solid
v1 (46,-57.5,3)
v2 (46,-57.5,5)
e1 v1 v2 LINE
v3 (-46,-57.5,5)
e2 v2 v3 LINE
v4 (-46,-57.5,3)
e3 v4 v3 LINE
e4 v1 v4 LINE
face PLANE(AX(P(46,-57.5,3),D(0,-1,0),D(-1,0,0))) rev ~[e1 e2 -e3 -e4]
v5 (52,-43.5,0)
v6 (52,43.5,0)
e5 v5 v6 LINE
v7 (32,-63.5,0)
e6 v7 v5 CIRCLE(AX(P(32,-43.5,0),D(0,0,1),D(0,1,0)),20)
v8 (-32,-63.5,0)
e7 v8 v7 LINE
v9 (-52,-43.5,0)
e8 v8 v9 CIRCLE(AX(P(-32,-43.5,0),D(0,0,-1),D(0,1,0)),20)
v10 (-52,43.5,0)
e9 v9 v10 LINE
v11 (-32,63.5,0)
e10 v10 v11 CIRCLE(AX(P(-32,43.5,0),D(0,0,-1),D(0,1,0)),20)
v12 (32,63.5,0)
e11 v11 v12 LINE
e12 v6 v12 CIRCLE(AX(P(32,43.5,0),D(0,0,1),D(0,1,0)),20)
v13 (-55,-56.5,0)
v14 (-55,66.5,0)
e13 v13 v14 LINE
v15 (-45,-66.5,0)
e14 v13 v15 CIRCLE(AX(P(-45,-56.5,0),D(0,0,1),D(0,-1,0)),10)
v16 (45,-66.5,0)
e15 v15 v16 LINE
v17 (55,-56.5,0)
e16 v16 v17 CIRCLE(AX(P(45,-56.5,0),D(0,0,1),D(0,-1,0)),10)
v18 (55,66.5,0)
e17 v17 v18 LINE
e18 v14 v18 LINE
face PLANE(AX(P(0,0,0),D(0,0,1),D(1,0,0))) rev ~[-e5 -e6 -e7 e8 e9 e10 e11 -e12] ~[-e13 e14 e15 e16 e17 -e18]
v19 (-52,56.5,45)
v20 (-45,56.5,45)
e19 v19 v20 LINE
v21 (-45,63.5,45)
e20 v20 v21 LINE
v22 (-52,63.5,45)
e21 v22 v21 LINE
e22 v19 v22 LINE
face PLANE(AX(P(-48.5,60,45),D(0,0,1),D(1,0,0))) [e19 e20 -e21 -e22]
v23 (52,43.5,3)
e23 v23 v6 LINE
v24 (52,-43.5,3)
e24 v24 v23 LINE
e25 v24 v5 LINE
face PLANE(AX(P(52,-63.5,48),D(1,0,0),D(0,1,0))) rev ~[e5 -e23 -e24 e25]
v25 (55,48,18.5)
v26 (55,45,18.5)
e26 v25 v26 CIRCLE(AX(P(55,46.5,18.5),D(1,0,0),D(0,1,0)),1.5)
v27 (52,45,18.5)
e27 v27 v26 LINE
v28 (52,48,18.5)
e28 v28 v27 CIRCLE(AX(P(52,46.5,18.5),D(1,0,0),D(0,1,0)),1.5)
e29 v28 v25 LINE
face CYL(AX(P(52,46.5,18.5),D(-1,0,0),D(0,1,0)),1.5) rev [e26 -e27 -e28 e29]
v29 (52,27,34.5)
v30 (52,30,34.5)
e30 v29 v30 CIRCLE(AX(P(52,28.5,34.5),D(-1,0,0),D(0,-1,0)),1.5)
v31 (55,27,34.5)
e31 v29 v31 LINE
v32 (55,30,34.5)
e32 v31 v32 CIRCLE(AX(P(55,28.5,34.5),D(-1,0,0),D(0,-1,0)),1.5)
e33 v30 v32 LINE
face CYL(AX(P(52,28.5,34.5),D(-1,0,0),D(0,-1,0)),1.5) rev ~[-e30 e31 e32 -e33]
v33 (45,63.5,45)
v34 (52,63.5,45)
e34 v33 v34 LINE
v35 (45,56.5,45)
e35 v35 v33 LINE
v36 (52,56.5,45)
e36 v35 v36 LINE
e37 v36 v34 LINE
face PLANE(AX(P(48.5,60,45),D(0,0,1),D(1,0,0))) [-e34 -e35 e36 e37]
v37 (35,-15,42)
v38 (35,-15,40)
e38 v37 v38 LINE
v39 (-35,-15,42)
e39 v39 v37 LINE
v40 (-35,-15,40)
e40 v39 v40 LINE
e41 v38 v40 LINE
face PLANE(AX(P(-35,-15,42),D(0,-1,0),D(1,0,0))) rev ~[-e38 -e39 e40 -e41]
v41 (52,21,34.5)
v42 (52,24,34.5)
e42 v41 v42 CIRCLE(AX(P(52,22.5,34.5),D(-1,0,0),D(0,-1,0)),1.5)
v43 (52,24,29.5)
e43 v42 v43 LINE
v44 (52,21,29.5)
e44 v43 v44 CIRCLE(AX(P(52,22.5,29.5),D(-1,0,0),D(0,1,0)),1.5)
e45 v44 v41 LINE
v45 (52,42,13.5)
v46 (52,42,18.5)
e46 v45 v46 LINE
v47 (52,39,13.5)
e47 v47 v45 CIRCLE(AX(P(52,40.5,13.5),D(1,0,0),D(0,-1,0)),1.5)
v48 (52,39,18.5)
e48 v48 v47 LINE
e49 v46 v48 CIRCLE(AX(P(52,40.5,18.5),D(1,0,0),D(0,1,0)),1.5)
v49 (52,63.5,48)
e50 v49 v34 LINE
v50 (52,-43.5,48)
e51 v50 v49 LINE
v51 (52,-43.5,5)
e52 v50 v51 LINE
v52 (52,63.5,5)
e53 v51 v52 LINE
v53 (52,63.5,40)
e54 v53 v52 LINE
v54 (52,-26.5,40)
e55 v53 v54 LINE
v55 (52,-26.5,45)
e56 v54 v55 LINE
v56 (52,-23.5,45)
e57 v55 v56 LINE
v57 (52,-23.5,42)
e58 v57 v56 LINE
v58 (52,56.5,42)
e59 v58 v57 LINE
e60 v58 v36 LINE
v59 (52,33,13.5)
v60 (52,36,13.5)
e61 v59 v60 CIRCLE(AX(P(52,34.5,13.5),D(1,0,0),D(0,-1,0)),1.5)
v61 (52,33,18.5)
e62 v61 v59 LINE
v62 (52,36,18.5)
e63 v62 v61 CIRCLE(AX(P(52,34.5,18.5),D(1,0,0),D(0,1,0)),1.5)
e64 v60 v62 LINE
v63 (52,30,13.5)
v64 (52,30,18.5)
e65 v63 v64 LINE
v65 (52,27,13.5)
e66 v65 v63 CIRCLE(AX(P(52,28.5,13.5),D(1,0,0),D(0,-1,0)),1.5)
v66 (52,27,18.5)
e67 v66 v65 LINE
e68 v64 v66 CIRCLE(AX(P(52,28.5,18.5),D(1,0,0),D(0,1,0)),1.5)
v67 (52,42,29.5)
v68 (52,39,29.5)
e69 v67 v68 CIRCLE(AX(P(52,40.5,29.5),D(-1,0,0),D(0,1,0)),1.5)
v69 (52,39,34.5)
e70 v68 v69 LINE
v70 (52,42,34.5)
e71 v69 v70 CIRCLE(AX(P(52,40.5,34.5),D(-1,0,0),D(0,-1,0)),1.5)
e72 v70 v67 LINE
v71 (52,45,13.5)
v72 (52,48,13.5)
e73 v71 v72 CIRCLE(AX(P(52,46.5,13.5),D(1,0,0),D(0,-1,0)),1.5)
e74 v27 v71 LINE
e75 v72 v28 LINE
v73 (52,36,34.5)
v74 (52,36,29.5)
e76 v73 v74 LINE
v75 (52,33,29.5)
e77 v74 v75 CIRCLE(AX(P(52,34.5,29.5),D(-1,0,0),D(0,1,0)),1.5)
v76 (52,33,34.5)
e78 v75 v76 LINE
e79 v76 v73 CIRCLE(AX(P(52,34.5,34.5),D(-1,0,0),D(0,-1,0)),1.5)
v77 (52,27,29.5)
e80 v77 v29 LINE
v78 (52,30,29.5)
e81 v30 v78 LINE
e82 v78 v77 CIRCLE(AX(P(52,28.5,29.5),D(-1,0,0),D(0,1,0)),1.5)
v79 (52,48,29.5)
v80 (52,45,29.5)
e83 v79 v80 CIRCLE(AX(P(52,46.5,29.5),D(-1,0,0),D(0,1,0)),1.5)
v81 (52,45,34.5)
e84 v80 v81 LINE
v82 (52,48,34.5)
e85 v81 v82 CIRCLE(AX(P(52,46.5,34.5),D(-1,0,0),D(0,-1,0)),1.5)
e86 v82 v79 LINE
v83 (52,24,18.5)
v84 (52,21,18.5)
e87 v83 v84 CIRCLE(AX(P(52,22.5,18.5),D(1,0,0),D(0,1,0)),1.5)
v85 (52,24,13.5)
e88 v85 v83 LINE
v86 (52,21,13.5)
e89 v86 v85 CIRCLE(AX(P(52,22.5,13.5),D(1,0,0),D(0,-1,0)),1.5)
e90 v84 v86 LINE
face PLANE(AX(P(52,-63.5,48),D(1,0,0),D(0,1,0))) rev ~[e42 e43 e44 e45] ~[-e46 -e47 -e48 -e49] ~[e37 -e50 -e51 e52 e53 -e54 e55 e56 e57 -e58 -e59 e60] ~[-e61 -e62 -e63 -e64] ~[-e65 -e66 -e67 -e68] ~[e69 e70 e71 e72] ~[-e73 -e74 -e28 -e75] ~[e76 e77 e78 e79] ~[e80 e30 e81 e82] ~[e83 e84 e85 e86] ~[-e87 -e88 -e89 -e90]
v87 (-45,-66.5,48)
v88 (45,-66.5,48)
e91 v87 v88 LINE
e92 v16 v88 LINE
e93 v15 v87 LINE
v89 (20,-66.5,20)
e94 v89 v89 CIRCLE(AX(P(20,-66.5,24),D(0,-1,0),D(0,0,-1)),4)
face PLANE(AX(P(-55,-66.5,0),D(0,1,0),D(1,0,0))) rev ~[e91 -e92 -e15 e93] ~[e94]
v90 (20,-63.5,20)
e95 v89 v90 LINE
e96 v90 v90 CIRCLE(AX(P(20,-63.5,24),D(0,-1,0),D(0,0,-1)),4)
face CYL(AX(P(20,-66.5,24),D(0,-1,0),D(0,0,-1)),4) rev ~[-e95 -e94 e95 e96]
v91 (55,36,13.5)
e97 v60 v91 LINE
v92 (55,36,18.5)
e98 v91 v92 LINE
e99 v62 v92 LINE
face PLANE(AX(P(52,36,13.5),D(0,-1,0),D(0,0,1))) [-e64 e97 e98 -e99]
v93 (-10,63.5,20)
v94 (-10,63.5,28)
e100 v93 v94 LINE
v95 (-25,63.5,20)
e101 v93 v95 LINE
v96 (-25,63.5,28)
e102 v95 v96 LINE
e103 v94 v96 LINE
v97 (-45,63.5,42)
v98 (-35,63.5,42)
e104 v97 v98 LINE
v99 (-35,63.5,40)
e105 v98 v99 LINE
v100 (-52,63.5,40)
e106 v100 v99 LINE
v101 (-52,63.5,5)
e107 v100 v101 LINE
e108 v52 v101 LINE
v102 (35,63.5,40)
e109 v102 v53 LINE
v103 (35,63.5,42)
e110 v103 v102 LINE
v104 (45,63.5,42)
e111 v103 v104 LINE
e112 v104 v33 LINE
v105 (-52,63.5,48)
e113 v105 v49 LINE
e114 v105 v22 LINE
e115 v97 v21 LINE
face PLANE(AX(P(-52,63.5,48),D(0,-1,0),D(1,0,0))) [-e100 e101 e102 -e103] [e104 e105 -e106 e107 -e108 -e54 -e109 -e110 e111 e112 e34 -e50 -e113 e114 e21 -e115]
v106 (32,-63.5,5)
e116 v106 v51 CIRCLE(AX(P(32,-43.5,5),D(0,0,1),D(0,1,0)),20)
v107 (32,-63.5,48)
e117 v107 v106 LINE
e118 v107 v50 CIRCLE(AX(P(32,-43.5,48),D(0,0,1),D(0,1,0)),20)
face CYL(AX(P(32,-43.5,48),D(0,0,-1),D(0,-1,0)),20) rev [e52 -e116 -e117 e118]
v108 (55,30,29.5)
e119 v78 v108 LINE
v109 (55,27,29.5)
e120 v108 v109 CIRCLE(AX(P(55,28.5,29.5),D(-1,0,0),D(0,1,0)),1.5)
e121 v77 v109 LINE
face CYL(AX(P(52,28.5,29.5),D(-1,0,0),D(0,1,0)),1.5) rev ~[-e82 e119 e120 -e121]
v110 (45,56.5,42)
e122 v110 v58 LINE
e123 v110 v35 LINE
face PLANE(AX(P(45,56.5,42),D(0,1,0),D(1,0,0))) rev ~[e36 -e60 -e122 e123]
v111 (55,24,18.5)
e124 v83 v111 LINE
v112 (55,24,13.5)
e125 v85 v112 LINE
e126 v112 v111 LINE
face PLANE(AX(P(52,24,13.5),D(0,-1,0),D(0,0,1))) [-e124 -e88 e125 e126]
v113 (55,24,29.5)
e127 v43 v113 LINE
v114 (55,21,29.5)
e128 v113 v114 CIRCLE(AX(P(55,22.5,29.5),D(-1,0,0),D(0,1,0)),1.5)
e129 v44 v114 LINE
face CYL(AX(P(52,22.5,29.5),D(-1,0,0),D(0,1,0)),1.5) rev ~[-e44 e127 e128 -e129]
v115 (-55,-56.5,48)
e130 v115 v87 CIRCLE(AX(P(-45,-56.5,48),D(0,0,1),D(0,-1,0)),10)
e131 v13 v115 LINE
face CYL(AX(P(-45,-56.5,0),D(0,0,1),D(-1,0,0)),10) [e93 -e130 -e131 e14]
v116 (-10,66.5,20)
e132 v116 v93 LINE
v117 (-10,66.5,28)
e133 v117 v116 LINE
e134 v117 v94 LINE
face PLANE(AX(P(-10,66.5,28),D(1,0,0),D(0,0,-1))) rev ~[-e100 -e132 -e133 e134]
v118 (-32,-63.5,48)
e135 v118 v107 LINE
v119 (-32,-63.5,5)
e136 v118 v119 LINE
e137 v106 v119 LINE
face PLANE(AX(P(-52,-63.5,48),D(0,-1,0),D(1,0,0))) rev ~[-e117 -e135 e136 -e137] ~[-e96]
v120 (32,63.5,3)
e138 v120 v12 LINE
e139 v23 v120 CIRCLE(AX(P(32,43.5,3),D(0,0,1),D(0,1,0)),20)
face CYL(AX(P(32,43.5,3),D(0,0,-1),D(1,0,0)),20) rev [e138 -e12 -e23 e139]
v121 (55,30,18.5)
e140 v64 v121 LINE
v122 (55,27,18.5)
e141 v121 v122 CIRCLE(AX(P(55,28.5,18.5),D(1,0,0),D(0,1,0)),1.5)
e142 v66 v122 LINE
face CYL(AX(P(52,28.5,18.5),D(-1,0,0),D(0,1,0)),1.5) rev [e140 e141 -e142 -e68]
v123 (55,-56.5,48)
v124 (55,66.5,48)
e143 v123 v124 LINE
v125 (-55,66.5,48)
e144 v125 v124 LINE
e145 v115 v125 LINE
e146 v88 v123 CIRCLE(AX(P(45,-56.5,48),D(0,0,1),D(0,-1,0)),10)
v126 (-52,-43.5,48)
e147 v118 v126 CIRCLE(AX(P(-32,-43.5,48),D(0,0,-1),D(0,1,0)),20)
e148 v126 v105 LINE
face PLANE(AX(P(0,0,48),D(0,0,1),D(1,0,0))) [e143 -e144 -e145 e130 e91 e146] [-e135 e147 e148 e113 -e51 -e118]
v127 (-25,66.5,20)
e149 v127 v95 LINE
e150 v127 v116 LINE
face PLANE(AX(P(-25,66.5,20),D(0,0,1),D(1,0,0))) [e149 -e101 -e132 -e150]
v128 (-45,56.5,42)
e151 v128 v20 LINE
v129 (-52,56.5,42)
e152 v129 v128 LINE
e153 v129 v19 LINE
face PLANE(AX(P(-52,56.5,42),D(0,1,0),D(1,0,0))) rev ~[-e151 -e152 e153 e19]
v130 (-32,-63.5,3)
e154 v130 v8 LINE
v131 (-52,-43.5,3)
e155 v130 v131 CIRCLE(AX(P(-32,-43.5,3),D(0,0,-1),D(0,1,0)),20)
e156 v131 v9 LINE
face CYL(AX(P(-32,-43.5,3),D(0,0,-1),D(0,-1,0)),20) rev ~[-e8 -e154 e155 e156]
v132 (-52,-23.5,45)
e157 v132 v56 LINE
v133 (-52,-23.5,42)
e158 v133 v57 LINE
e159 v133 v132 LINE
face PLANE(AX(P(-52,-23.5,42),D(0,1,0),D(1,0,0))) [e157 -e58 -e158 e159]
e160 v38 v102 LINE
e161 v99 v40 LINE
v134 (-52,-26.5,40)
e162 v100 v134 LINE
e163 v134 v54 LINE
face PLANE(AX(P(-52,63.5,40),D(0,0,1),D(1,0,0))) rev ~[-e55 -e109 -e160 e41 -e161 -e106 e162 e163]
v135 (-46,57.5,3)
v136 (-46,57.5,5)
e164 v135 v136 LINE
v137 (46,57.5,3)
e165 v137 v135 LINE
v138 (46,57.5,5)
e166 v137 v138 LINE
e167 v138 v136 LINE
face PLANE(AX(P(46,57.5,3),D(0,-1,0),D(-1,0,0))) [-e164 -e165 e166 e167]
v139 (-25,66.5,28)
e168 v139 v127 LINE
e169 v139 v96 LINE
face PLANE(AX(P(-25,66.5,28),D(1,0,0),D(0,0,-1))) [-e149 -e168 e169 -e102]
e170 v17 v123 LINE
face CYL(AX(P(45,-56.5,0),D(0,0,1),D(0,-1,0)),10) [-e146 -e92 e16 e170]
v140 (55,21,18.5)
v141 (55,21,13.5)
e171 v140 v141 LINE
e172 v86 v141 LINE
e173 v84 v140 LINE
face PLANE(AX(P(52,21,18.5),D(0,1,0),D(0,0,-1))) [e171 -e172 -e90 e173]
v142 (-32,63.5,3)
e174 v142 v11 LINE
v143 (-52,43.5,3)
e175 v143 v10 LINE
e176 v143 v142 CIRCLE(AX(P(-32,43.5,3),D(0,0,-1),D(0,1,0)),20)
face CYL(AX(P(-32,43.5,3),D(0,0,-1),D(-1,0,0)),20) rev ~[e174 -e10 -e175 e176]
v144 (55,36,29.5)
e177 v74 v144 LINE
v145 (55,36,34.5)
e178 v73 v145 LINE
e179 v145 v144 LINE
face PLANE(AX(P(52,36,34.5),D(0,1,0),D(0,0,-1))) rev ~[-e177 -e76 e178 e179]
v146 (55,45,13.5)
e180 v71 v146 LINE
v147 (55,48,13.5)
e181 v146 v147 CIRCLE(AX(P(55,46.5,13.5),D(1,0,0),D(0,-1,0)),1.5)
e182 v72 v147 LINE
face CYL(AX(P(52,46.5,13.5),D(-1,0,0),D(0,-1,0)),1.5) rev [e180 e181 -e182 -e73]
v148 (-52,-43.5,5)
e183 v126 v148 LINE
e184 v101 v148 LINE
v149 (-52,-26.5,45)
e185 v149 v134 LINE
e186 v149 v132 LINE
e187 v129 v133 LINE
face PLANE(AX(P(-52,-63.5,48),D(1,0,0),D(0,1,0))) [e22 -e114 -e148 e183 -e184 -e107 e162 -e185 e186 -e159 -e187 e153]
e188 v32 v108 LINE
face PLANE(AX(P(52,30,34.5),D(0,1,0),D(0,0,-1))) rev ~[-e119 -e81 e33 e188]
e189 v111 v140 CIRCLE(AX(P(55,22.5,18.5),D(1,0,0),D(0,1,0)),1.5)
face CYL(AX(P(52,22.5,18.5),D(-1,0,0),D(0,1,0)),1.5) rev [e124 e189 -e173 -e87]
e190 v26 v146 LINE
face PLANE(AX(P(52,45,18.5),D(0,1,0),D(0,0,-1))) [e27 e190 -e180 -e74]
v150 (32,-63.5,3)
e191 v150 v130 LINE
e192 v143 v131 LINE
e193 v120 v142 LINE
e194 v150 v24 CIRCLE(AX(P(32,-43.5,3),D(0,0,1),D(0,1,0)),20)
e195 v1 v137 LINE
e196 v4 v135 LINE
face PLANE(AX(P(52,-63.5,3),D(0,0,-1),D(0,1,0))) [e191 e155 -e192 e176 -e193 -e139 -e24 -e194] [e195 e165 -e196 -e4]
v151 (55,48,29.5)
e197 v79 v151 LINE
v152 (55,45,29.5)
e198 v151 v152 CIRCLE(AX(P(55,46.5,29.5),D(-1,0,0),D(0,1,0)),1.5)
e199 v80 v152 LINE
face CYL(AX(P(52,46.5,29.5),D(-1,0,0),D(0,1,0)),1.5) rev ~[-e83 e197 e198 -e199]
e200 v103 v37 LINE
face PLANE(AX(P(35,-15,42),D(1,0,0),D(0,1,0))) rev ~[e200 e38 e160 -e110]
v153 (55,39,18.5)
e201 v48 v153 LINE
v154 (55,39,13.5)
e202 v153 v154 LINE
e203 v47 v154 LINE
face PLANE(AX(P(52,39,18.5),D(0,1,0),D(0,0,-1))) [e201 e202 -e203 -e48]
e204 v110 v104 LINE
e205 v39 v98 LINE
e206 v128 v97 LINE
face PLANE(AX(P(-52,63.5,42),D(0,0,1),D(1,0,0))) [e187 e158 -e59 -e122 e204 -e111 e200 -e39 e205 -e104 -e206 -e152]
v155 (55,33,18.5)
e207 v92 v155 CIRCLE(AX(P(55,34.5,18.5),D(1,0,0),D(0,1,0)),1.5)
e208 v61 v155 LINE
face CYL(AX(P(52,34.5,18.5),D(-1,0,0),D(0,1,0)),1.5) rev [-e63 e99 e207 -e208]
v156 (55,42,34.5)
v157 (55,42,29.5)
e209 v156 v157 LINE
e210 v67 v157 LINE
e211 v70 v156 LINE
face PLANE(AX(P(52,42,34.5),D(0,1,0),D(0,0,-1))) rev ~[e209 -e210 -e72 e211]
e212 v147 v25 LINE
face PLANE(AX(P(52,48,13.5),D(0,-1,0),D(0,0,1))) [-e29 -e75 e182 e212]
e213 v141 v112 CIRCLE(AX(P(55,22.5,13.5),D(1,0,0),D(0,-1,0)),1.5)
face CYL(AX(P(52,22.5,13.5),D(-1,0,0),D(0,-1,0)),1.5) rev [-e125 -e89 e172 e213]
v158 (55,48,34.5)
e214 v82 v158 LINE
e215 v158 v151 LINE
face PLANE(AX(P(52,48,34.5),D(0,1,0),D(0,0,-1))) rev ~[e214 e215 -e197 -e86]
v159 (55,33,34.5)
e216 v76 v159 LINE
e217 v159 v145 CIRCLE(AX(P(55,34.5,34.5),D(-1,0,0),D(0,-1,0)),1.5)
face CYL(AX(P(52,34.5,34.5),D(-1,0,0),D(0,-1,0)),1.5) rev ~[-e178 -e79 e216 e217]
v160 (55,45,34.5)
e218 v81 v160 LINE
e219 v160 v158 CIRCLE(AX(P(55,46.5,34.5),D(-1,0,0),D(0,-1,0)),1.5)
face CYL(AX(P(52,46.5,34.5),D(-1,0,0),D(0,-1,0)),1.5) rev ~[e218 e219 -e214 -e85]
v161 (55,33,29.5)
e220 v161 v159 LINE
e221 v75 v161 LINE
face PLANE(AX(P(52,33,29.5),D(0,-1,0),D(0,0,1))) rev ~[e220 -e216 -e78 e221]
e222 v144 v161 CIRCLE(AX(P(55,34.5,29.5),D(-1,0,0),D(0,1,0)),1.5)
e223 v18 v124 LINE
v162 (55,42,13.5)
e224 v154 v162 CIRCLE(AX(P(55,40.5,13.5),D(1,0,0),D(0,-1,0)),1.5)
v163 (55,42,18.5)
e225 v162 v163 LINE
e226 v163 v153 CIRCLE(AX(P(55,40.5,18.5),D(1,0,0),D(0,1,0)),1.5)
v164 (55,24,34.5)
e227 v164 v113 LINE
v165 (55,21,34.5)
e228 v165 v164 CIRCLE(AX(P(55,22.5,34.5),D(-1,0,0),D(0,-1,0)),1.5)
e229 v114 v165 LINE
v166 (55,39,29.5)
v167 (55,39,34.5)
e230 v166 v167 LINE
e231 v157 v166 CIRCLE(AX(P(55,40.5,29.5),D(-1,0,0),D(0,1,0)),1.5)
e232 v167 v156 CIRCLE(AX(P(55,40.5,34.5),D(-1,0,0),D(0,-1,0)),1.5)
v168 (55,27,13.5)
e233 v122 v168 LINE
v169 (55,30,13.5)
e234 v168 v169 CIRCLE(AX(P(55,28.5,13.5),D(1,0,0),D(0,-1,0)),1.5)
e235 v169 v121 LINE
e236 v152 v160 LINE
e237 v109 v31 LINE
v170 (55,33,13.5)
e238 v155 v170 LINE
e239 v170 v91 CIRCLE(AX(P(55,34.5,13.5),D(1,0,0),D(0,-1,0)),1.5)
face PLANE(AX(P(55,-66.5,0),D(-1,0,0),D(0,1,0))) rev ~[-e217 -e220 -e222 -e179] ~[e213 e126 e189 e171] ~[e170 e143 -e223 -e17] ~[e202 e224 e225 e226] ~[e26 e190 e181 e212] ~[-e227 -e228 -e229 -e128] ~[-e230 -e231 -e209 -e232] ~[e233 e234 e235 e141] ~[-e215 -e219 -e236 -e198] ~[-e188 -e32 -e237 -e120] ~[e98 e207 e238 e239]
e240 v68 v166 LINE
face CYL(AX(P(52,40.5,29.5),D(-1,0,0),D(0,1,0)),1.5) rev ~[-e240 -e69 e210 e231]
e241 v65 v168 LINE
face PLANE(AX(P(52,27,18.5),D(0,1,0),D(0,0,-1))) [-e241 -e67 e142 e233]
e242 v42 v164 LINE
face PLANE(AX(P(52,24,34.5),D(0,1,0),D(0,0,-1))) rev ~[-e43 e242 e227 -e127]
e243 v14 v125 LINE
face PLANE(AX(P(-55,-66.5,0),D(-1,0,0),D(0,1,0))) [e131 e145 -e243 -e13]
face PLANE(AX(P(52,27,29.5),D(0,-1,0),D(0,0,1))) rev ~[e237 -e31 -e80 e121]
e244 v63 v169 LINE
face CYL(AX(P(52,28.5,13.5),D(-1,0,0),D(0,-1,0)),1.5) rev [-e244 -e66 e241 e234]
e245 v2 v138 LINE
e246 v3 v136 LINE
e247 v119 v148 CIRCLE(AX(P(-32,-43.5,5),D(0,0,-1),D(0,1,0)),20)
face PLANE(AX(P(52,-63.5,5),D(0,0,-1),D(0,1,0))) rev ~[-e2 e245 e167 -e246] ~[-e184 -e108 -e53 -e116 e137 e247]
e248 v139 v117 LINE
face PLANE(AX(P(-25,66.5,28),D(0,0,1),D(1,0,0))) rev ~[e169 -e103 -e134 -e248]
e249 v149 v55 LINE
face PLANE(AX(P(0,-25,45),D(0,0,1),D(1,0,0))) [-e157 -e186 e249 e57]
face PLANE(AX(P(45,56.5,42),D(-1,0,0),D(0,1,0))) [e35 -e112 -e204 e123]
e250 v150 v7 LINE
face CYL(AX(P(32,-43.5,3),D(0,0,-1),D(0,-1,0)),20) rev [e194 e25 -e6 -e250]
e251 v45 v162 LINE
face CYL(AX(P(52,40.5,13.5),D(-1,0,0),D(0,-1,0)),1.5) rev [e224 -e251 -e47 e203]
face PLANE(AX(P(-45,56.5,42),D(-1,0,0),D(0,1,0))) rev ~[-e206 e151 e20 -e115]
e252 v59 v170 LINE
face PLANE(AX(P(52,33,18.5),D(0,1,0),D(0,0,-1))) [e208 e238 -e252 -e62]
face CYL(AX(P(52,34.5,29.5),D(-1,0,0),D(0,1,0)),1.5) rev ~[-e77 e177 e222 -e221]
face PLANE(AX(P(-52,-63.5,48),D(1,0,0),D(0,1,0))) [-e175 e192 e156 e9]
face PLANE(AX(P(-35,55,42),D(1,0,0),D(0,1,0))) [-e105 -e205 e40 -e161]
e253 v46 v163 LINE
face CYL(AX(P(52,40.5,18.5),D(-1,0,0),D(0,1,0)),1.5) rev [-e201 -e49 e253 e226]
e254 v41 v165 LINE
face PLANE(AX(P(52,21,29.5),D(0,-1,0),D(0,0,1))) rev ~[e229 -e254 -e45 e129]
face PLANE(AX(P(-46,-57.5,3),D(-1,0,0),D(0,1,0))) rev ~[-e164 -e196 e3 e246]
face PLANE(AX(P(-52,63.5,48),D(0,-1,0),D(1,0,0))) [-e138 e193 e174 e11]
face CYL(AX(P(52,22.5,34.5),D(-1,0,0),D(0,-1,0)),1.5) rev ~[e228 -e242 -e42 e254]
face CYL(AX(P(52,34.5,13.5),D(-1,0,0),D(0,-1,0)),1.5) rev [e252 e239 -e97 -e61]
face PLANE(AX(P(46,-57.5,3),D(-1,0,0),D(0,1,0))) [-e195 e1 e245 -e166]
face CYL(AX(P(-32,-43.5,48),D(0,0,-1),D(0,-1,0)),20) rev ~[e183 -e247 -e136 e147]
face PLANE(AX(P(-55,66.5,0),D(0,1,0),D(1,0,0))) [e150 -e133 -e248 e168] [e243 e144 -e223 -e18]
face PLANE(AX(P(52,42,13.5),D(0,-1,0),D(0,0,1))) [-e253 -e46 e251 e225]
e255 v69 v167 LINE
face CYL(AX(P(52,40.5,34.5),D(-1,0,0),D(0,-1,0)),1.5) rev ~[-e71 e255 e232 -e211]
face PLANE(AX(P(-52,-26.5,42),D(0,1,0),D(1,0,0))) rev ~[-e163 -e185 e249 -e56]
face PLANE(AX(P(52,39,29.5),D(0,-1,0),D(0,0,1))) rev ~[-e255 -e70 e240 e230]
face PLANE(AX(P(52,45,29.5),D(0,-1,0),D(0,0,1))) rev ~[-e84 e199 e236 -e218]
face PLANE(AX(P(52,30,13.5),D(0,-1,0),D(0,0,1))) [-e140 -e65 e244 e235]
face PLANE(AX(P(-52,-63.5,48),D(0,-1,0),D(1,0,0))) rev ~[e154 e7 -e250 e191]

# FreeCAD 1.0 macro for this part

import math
import FreeCAD as App
import Part
import Sketcher


def edges_at(feature, points):
    """Names of the edges that pass closest to the given points."""
    edges = feature.Shape.Edges
    near = lambda p: min(range(len(edges)), key=lambda i: edges[i].distToShape(Part.Vertex(*p))[0])
    return sorted({f"Edge{near(p) + 1}" for p in points})


def add_polygon(sketch, points):
    """Adds a closed chain of lines whose ends are joined by coincident constraints."""
    first, n = sketch.GeometryCount, len(points)
    for a, b in zip(points, points[1:] + points[:1]):
        sketch.addGeometry(Part.LineSegment(App.Vector(*a, 0), App.Vector(*b, 0)), False)
    for i in range(n):
        sketch.addConstraint(Sketcher.Constraint("Coincident", first + i, 2, first + (i + 1) % n, 1))

doc = App.newDocument("Part")
body = doc.addObject("PartDesign::Body", "Body")

# Sketch on XY plane
sketch1 = body.newObject("Sketcher::SketchObject", "Sketch")
sketch1.AttachmentSupport = (doc.getObject("XY_Plane"), [""])
sketch1.MapMode = "FlatFace"
add_polygon(sketch1, [(-55, 66), (-55, -66), (55, -66), (55, 66)])  # lines 0-3
sketch1.addConstraint([
    Sketcher.Constraint("Vertical", 0),
    Sketcher.Constraint("Horizontal", 1),
    Sketcher.Constraint("Vertical", 2),
    Sketcher.Constraint("Horizontal", 3),
    Sketcher.Constraint("Symmetric", 0, 2, 2, 2, -1, 1),
    Sketcher.Constraint("DistanceX", 1, 1, 1, 2, 110.0),
    Sketcher.Constraint("DistanceY", 0, 2, 0, 1, 133.0),
])
pad1 = body.newObject("PartDesign::Pad", "Pad")
pad1.Profile = sketch1
pad1.Length = 48

# Sketch on XY plane
sketch2 = body.newObject("Sketcher::SketchObject", "Sketch001")
sketch2.AttachmentSupport = (doc.getObject("XY_Plane"), [""])
sketch2.MapMode = "FlatFace"
sketch2.AttachmentOffset = App.Placement(App.Vector(0, 0, 48), App.Rotation())
add_polygon(sketch2, [(-52, 64), (-52, -64), (52, -64), (52, 64)])  # lines 0-3
sketch2.addConstraint([
    Sketcher.Constraint("Vertical", 0),
    Sketcher.Constraint("Horizontal", 1),
    Sketcher.Constraint("Vertical", 2),
    Sketcher.Constraint("Horizontal", 3),
    Sketcher.Constraint("Symmetric", 0, 2, 2, 2, -1, 1),
    Sketcher.Constraint("DistanceX", 1, 1, 1, 2, 104.0),
    Sketcher.Constraint("DistanceY", 0, 2, 0, 1, 127.0),
])
pocket1 = body.newObject("PartDesign::Pocket", "Pocket")
pocket1.Profile = sketch2
pocket1.Length = 50

# Sketch on XZ plane
sketch3 = body.newObject("Sketcher::SketchObject", "Sketch002")
sketch3.AttachmentSupport = (doc.getObject("XZ_Plane"), [""])
sketch3.MapMode = "FlatFace"
sketch3.AttachmentOffset = App.Placement(App.Vector(0, 0, -63.5), App.Rotation())
add_polygon(sketch3, [(-52, 42), (-52, 40), (52, 40), (52, 42)])  # lines 0-3
sketch3.addConstraint([
    Sketcher.Constraint("Vertical", 0),
    Sketcher.Constraint("Horizontal", 1),
    Sketcher.Constraint("Vertical", 2),
    Sketcher.Constraint("Horizontal", 3),
    Sketcher.Constraint("DistanceX", 1, 1, 1, 2, 104.0),
    Sketcher.Constraint("DistanceY", 0, 2, 0, 1, 2.0),
    Sketcher.Constraint("DistanceX", 0, 2, -1, 1, 52.0),
    Sketcher.Constraint("DistanceY", -1, 1, 0, 2, 40.0),
])
pad2 = body.newObject("PartDesign::Pad", "Pad001")
pad2.Profile = sketch3
pad2.Length = 90

# Sketch on XY plane
sketch4 = body.newObject("Sketcher::SketchObject", "Sketch003")
sketch4.AttachmentSupport = (doc.getObject("XY_Plane"), [""])
sketch4.MapMode = "FlatFace"
sketch4.AttachmentOffset = App.Placement(App.Vector(0, 0, 42), App.Rotation())
add_polygon(sketch4, [(-35, 55), (-35, -15), (35, -15), (35, 55)])  # lines 0-3
sketch4.addConstraint([
    Sketcher.Constraint("Vertical", 0),
    Sketcher.Constraint("Horizontal", 1),
    Sketcher.Constraint("Vertical", 2),
    Sketcher.Constraint("Horizontal", 3),
    Sketcher.Constraint("Equal", 3, 0),
    Sketcher.Constraint("DistanceX", 1, 1, 1, 2, 70.0),
    Sketcher.Constraint("DistanceX", 0, 2, -1, 1, 35.0),
    Sketcher.Constraint("DistanceY", 0, 2, -1, 1, 15.0),
])
pocket2 = body.newObject("PartDesign::Pocket", "Pocket001")
pocket2.Profile = sketch4
pocket2.Type = "UpToFirst"

# Sketch on XY plane
sketch5 = body.newObject("Sketcher::SketchObject", "Sketch004")
sketch5.AttachmentSupport = (doc.getObject("XY_Plane"), [""])
sketch5.MapMode = "FlatFace"
sketch5.AttachmentOffset = App.Placement(App.Vector(0, 0, 42), App.Rotation())
add_polygon(sketch5, [(-52, -23.5), (-52, -26.5), (52, -26.5), (52, -23.5)])  # lines 0-3
sketch5.addConstraint([
    Sketcher.Constraint("Vertical", 0),
    Sketcher.Constraint("Horizontal", 1),
    Sketcher.Constraint("Vertical", 2),
    Sketcher.Constraint("Horizontal", 3),
    Sketcher.Constraint("DistanceX", 1, 1, 1, 2, 104.0),
    Sketcher.Constraint("DistanceY", 0, 2, 0, 1, 3.0),
    Sketcher.Constraint("DistanceX", 0, 2, -1, 1, 52.0),
    Sketcher.Constraint("DistanceY", 0, 2, -1, 1, 26.5),
])
pad3 = body.newObject("PartDesign::Pad", "Pad002")
pad3.Profile = sketch5
pad3.Length = 3

# Sketch on XZ plane
sketch6 = body.newObject("Sketcher::SketchObject", "Sketch005")
sketch6.AttachmentSupport = (doc.getObject("XZ_Plane"), [""])
sketch6.MapMode = "FlatFace"
sketch6.AttachmentOffset = App.Placement(App.Vector(0, 0, -66.5), App.Rotation())
add_polygon(sketch6, [(-25, 20), (-25, 28), (-10, 28), (-10, 20)])  # lines 0-3
sketch6.addConstraint([
    Sketcher.Constraint("Vertical", 0),
    Sketcher.Constraint("Horizontal", 1),
    Sketcher.Constraint("Vertical", 2),
    Sketcher.Constraint("Horizontal", 3),
    Sketcher.Constraint("DistanceX", 1, 1, 1, 2, 15.0),
    Sketcher.Constraint("DistanceY", 0, 1, 0, 2, 8.0),
    Sketcher.Constraint("DistanceX", 0, 2, -1, 1, 25.0),
    Sketcher.Constraint("DistanceY", -1, 1, 0, 2, 28.0),
])
pocket3 = body.newObject("PartDesign::Pocket", "Pocket002")
pocket3.Profile = sketch6
pocket3.Length = 10
pocket3.Reversed = True

# Sketch on XY plane
sketch7 = body.newObject("Sketcher::SketchObject", "Sketch006")
sketch7.AttachmentSupport = (doc.getObject("XY_Plane"), [""])
sketch7.MapMode = "FlatFace"
sketch7.AttachmentOffset = App.Placement(App.Vector(0, 0, 42), App.Rotation())
add_polygon(sketch7, [(-35, 64), (-35, 55), (35, 55), (35, 64)])  # lines 0-3
sketch7.addConstraint([
    Sketcher.Constraint("Vertical", 0),
    Sketcher.Constraint("Horizontal", 1),
    Sketcher.Constraint("Vertical", 2),
    Sketcher.Constraint("Horizontal", 3),
    Sketcher.Constraint("DistanceX", 1, 1, 1, 2, 70.0),
    Sketcher.Constraint("DistanceY", 0, 2, 0, 1, 8.5),
    Sketcher.Constraint("DistanceX", 0, 2, -1, 1, 35.0),
    Sketcher.Constraint("DistanceY", -1, 1, 0, 2, 55.0),
])
pocket4 = body.newObject("PartDesign::Pocket", "Pocket003")
pocket4.Profile = sketch7
pocket4.Length = 2

# Sketch on YZ plane
sketch8 = body.newObject("Sketcher::SketchObject", "Sketch007")
sketch8.AttachmentSupport = (doc.getObject("YZ_Plane"), [""])
sketch8.MapMode = "FlatFace"
sketch8.AttachmentOffset = App.Placement(App.Vector(0, 0, 52), App.Rotation())
add_polygon(sketch8, [(63.5, 3), (-63.5, 3), (-63.5, 5), (63.5, 5)])  # lines 0-3
sketch8.addConstraint([
    Sketcher.Constraint("Horizontal", 0),
    Sketcher.Constraint("Vertical", 1),
    Sketcher.Constraint("Horizontal", 2),
    Sketcher.Constraint("Vertical", 3),
    Sketcher.Constraint("DistanceX", 0, 2, 0, 1, 127.0),
    Sketcher.Constraint("DistanceY", 1, 1, 1, 2, 2.0),
    Sketcher.Constraint("DistanceY", -1, 1, 0, 2, 3.0),
    Sketcher.Constraint("DistanceX", 0, 2, -1, 1, 63.5),
])
pad4 = body.newObject("PartDesign::Pad", "Pad003")
pad4.Profile = sketch8
pad4.Type = "UpToFirst"
pad4.Reversed = True

# Sketch on XY plane
sketch9 = body.newObject("Sketcher::SketchObject", "Sketch008")
sketch9.AttachmentSupport = (doc.getObject("XY_Plane"), [""])
sketch9.MapMode = "FlatFace"
sketch9.AttachmentOffset = App.Placement(App.Vector(0, 0, 3), App.Rotation())
add_polygon(sketch9, [(46, 58), (46, -58), (-46, -58), (-46, 58)])  # lines 0-3
sketch9.addConstraint([
    Sketcher.Constraint("Vertical", 0),
    Sketcher.Constraint("Horizontal", 1),
    Sketcher.Constraint("Vertical", 2),
    Sketcher.Constraint("Horizontal", 3),
    Sketcher.Constraint("Symmetric", 0, 2, 2, 2, -1, 1),
    Sketcher.Constraint("DistanceX", 1, 2, 1, 1, 92.0),
    Sketcher.Constraint("DistanceY", 0, 2, 0, 1, 115.0),
])
pocket5 = body.newObject("PartDesign::Pocket", "Pocket004")
pocket5.Profile = sketch9
pocket5.Length = 8
pocket5.Reversed = True
doc.recompute()

fillet = body.newObject("PartDesign::Fillet", "Fillet")
fillet.Base = (pocket5, edges_at(pocket5, [(-55, -66.5, 24)]))
fillet.Radius = 10
doc.recompute()

fillet2 = body.newObject("PartDesign::Fillet", "Fillet001")
fillet2.Base = (fillet, edges_at(fillet, [(-52, -63.5, 1.5)]))
fillet2.Radius = 20
doc.recompute()

fillet3 = body.newObject("PartDesign::Fillet", "Fillet002")
fillet3.Base = (fillet2, edges_at(fillet2, [(52, -63.5, 1.5)]))
fillet3.Radius = 20
doc.recompute()

fillet4 = body.newObject("PartDesign::Fillet", "Fillet003")
fillet4.Base = (fillet3, edges_at(fillet3, [(55, -66.5, 24)]))
fillet4.Radius = 10
doc.recompute()

fillet5 = body.newObject("PartDesign::Fillet", "Fillet004")
fillet5.Base = (fillet4, edges_at(fillet4, [(-52, 63.5, 1.5), (52, 63.5, 1.5)]))
fillet5.Radius = 20
doc.recompute()

fillet6 = body.newObject("PartDesign::Fillet", "Fillet005")
fillet6.Base = (fillet5, edges_at(fillet5, [(52, -63.5, 26.5)]))
fillet6.Radius = 20
doc.recompute()

fillet7 = body.newObject("PartDesign::Fillet", "Fillet006")
fillet7.Base = (fillet6, edges_at(fillet6, [(-52, -63.5, 26.5)]))
fillet7.Radius = 20

# Sketch on XY plane
sketch10 = body.newObject("Sketcher::SketchObject", "Sketch009")
sketch10.AttachmentSupport = (doc.getObject("XY_Plane"), [""])
sketch10.MapMode = "FlatFace"
sketch10.AttachmentOffset = App.Placement(App.Vector(0, 0, 42), App.Rotation())
add_polygon(sketch10, [(45, 64), (45, 56), (52, 56), (52, 64)])  # lines 0-3
add_polygon(sketch10, [(-52, 64), (-52, 56), (-45, 56), (-45, 64)])  # lines 4-7
sketch10.addConstraint([
    Sketcher.Constraint("Vertical", 0),
    Sketcher.Constraint("Horizontal", 1),
    Sketcher.Constraint("Vertical", 2),
    Sketcher.Constraint("Horizontal", 3),
    Sketcher.Constraint("Vertical", 4),
    Sketcher.Constraint("Horizontal", 5),
    Sketcher.Constraint("Vertical", 6),
    Sketcher.Constraint("Horizontal", 7),
    Sketcher.Constraint("Symmetric", 1, 2, 4, 2, -2),
    Sketcher.Constraint("Symmetric", 3, 2, 6, 2, -2),
    Sketcher.Constraint("Equal", 7, 0),
    Sketcher.Constraint("DistanceX", 1, 1, 1, 2, 7.0),
    Sketcher.Constraint("DistanceX", -1, 1, 0, 2, 45.0),
    Sketcher.Constraint("DistanceY", -1, 1, 0, 2, 56.5),
])
pad5 = body.newObject("PartDesign::Pad", "Pad004")
pad5.Profile = sketch10
pad5.Length = 3

# Sketch on XZ plane
sketch11 = body.newObject("Sketcher::SketchObject", "Sketch010")
sketch11.AttachmentSupport = (doc.getObject("XZ_Plane"), [""])
sketch11.MapMode = "FlatFace"
sketch11.AttachmentOffset = App.Placement(App.Vector(0, 0, 66.5), App.Rotation())
sketch11.addGeometry(Part.Circle(App.Vector(20, 24, 0), App.Vector(0, 0, 1), 4), False)
sketch11.addConstraint([
    Sketcher.Constraint("Diameter", 0, 8.0),
    Sketcher.Constraint("DistanceX", -1, 1, 0, 3, 20.0),
    Sketcher.Constraint("DistanceY", -1, 1, 0, 3, 24.0),
])
pocket6 = body.newObject("PartDesign::Pocket", "Pocket005")
pocket6.Profile = sketch11
pocket6.Length = 3

# Sketch on YZ plane
sketch12 = body.newObject("Sketcher::SketchObject", "Sketch011")
sketch12.AttachmentSupport = (doc.getObject("YZ_Plane"), [""])
sketch12.MapMode = "FlatFace"
sketch12.AttachmentOffset = App.Placement(App.Vector(0, 0, 52), App.Rotation())
sketch12.addGeometry([
    Part.LineSegment(App.Vector(48, 18.5, 0), App.Vector(48, 13.5, 0)),  # 0
    Part.ArcOfCircle(Part.Circle(App.Vector(46.5, 13.5, 0), App.Vector(0, 0, 1), 1.5), math.radians(180), math.radians(360)),  # 1
    Part.LineSegment(App.Vector(45, 13.5, 0), App.Vector(45, 18.5, 0)),  # 2
    Part.ArcOfCircle(Part.Circle(App.Vector(46.5, 18.5, 0), App.Vector(0, 0, 1), 1.5), math.radians(0), math.radians(180)),  # 3
    Part.LineSegment(App.Vector(48, 34.5, 0), App.Vector(48, 29.5, 0)),  # 4
    Part.ArcOfCircle(Part.Circle(App.Vector(46.5, 29.5, 0), App.Vector(0, 0, 1), 1.5), math.radians(180), math.radians(360)),  # 5
    Part.LineSegment(App.Vector(45, 29.5, 0), App.Vector(45, 34.5, 0)),  # 6
    Part.ArcOfCircle(Part.Circle(App.Vector(46.5, 34.5, 0), App.Vector(0, 0, 1), 1.5), math.radians(0), math.radians(180)),  # 7
    Part.LineSegment(App.Vector(42, 18.5, 0), App.Vector(42, 13.5, 0)),  # 8
    Part.ArcOfCircle(Part.Circle(App.Vector(40.5, 13.5, 0), App.Vector(0, 0, 1), 1.5), math.radians(180), math.radians(360)),  # 9
    Part.LineSegment(App.Vector(39, 13.5, 0), App.Vector(39, 18.5, 0)),  # 10
    Part.ArcOfCircle(Part.Circle(App.Vector(40.5, 18.5, 0), App.Vector(0, 0, 1), 1.5), math.radians(0), math.radians(180)),  # 11
    Part.LineSegment(App.Vector(36, 18.5, 0), App.Vector(36, 13.5, 0)),  # 12
    Part.ArcOfCircle(Part.Circle(App.Vector(34.5, 13.5, 0), App.Vector(0, 0, 1), 1.5), math.radians(180), math.radians(360)),  # 13
    Part.LineSegment(App.Vector(33, 13.5, 0), App.Vector(33, 18.5, 0)),  # 14
    Part.ArcOfCircle(Part.Circle(App.Vector(34.5, 18.5, 0), App.Vector(0, 0, 1), 1.5), math.radians(0), math.radians(180)),  # 15
    Part.LineSegment(App.Vector(30, 18.5, 0), App.Vector(30, 13.5, 0)),  # 16
    Part.ArcOfCircle(Part.Circle(App.Vector(28.5, 13.5, 0), App.Vector(0, 0, 1), 1.5), math.radians(180), math.radians(360)),  # 17
    Part.LineSegment(App.Vector(27, 13.5, 0), App.Vector(27, 18.5, 0)),  # 18
    Part.ArcOfCircle(Part.Circle(App.Vector(28.5, 18.5, 0), App.Vector(0, 0, 1), 1.5), math.radians(0), math.radians(180)),  # 19
    Part.LineSegment(App.Vector(24, 18.5, 0), App.Vector(24, 13.5, 0)),  # 20
    Part.ArcOfCircle(Part.Circle(App.Vector(22.5, 13.5, 0), App.Vector(0, 0, 1), 1.5), math.radians(180), math.radians(360)),  # 21
    Part.LineSegment(App.Vector(21, 13.5, 0), App.Vector(21, 18.5, 0)),  # 22
    Part.ArcOfCircle(Part.Circle(App.Vector(22.5, 18.5, 0), App.Vector(0, 0, 1), 1.5), math.radians(0), math.radians(180)),  # 23
    Part.LineSegment(App.Vector(24, 34.5, 0), App.Vector(24, 29.5, 0)),  # 24
    Part.ArcOfCircle(Part.Circle(App.Vector(22.5, 29.5, 0), App.Vector(0, 0, 1), 1.5), math.radians(180), math.radians(360)),  # 25
    Part.LineSegment(App.Vector(21, 29.5, 0), App.Vector(21, 34.5, 0)),  # 26
    Part.ArcOfCircle(Part.Circle(App.Vector(22.5, 34.5, 0), App.Vector(0, 0, 1), 1.5), math.radians(0), math.radians(180)),  # 27
    Part.LineSegment(App.Vector(30, 34.5, 0), App.Vector(30, 29.5, 0)),  # 28
    Part.ArcOfCircle(Part.Circle(App.Vector(28.5, 29.5, 0), App.Vector(0, 0, 1), 1.5), math.radians(180), math.radians(360)),  # 29
    Part.LineSegment(App.Vector(27, 29.5, 0), App.Vector(27, 34.5, 0)),  # 30
    Part.ArcOfCircle(Part.Circle(App.Vector(28.5, 34.5, 0), App.Vector(0, 0, 1), 1.5), math.radians(0), math.radians(180)),  # 31
    Part.LineSegment(App.Vector(36, 34.5, 0), App.Vector(36, 29.5, 0)),  # 32
    Part.ArcOfCircle(Part.Circle(App.Vector(34.5, 29.5, 0), App.Vector(0, 0, 1), 1.5), math.radians(180), math.radians(360)),  # 33
    Part.LineSegment(App.Vector(33, 29.5, 0), App.Vector(33, 34.5, 0)),  # 34
    Part.ArcOfCircle(Part.Circle(App.Vector(34.5, 34.5, 0), App.Vector(0, 0, 1), 1.5), math.radians(0), math.radians(180)),  # 35
    Part.LineSegment(App.Vector(42, 34.5, 0), App.Vector(42, 29.5, 0)),  # 36
    Part.ArcOfCircle(Part.Circle(App.Vector(40.5, 29.5, 0), App.Vector(0, 0, 1), 1.5), math.radians(180), math.radians(360)),  # 37
    Part.LineSegment(App.Vector(39, 29.5, 0), App.Vector(39, 34.5, 0)),  # 38
    Part.ArcOfCircle(Part.Circle(App.Vector(40.5, 34.5, 0), App.Vector(0, 0, 1), 1.5), math.radians(0), math.radians(180)),  # 39
], False)
sketch12.addConstraint([
    Sketcher.Constraint("Tangent", 0, 2, 1, 2),
    Sketcher.Constraint("Tangent", 1, 1, 2, 1),
    Sketcher.Constraint("Tangent", 2, 2, 3, 2),
    Sketcher.Constraint("Tangent", 3, 1, 0, 1),
    Sketcher.Constraint("Tangent", 4, 2, 5, 2),
    Sketcher.Constraint("Tangent", 5, 1, 6, 1),
    Sketcher.Constraint("Tangent", 6, 2, 7, 2),
    Sketcher.Constraint("Tangent", 7, 1, 4, 1),
    Sketcher.Constraint("Tangent", 8, 2, 9, 2),
    Sketcher.Constraint("Tangent", 9, 1, 10, 1),
    Sketcher.Constraint("Tangent", 10, 2, 11, 2),
    Sketcher.Constraint("Tangent", 11, 1, 8, 1),
    Sketcher.Constraint("Tangent", 12, 2, 13, 2),
    Sketcher.Constraint("Tangent", 13, 1, 14, 1),
    Sketcher.Constraint("Tangent", 14, 2, 15, 2),
    Sketcher.Constraint("Tangent", 15, 1, 12, 1),
    Sketcher.Constraint("Tangent", 16, 2, 17, 2),
    Sketcher.Constraint("Tangent", 17, 1, 18, 1),
    Sketcher.Constraint("Tangent", 18, 2, 19, 2),
    Sketcher.Constraint("Tangent", 19, 1, 16, 1),
    Sketcher.Constraint("Tangent", 20, 2, 21, 2),
    Sketcher.Constraint("Tangent", 21, 1, 22, 1),
    Sketcher.Constraint("Tangent", 22, 2, 23, 2),
    Sketcher.Constraint("Tangent", 23, 1, 20, 1),
    Sketcher.Constraint("Tangent", 24, 2, 25, 2),
    Sketcher.Constraint("Tangent", 25, 1, 26, 1),
    Sketcher.Constraint("Tangent", 26, 2, 27, 2),
    Sketcher.Constraint("Tangent", 27, 1, 24, 1),
    Sketcher.Constraint("Tangent", 28, 2, 29, 2),
    Sketcher.Constraint("Tangent", 29, 1, 30, 1),
    Sketcher.Constraint("Tangent", 30, 2, 31, 2),
    Sketcher.Constraint("Tangent", 31, 1, 28, 1),
    Sketcher.Constraint("Tangent", 32, 2, 33, 2),
    Sketcher.Constraint("Tangent", 33, 1, 34, 1),
    Sketcher.Constraint("Tangent", 34, 2, 35, 2),
    Sketcher.Constraint("Tangent", 35, 1, 32, 1),
    Sketcher.Constraint("Tangent", 36, 2, 37, 2),
    Sketcher.Constraint("Tangent", 37, 1, 38, 1),
    Sketcher.Constraint("Tangent", 38, 2, 39, 2),
    Sketcher.Constraint("Tangent", 39, 1, 36, 1),
    Sketcher.Constraint("Vertical", 0),
    Sketcher.Constraint("Vertical", 2),
    Sketcher.Constraint("Vertical", 4),
    Sketcher.Constraint("Vertical", 6),
    Sketcher.Constraint("Vertical", 8),
    Sketcher.Constraint("Vertical", 10),
    Sketcher.Constraint("Vertical", 12),
    Sketcher.Constraint("Vertical", 14),
    Sketcher.Constraint("Vertical", 16),
    Sketcher.Constraint("Vertical", 18),
    Sketcher.Constraint("Vertical", 20),
    Sketcher.Constraint("Vertical", 22),
    Sketcher.Constraint("Vertical", 24),
    Sketcher.Constraint("Vertical", 26),
    Sketcher.Constraint("Vertical", 28),
    Sketcher.Constraint("Vertical", 30),
    Sketcher.Constraint("Vertical", 32),
    Sketcher.Constraint("Vertical", 34),
    Sketcher.Constraint("Vertical", 36),
    Sketcher.Constraint("Vertical", 38),
    Sketcher.Constraint("Equal", 3, 5),
    Sketcher.Constraint("Equal", 7, 9),
    Sketcher.Constraint("Equal", 11, 13),
    Sketcher.Constraint("Equal", 15, 17),
    Sketcher.Constraint("Equal", 19, 21),
    Sketcher.Constraint("Equal", 23, 25),
    Sketcher.Constraint("Equal", 27, 29),
    Sketcher.Constraint("Equal", 31, 33),
    Sketcher.Constraint("Equal", 35, 37),
    Sketcher.Constraint("Horizontal", 1, 3, 9, 3),
    Sketcher.Constraint("Horizontal", 3, 3, 11, 3),
    Sketcher.Constraint("Horizontal", 9, 3, 13, 3),
    Sketcher.Constraint("Horizontal", 11, 3, 15, 3),
    Sketcher.Constraint("Horizontal", 13, 3, 17, 3),
    Sketcher.Constraint("Horizontal", 15, 3, 19, 3),
    Sketcher.Constraint("Horizontal", 17, 3, 21, 3),
    Sketcher.Constraint("Horizontal", 19, 3, 23, 3),
    Sketcher.Constraint("Horizontal", 5, 3, 25, 3),
    Sketcher.Constraint("Horizontal", 7, 3, 27, 3),
    Sketcher.Constraint("Horizontal", 25, 3, 29, 3),
    Sketcher.Constraint("Horizontal", 27, 3, 31, 3),
    Sketcher.Constraint("Horizontal", 29, 3, 33, 3),
    Sketcher.Constraint("Horizontal", 31, 3, 35, 3),
    Sketcher.Constraint("Horizontal", 33, 3, 37, 3),
    Sketcher.Constraint("Horizontal", 35, 3, 39, 3),
    Sketcher.Constraint("Vertical", 3, 3, 5, 3),
    Sketcher.Constraint("Vertical", 23, 3, 25, 3),
    Sketcher.Constraint("Vertical", 19, 3, 29, 3),
    Sketcher.Constraint("Vertical", 15, 3, 33, 3),
    Sketcher.Constraint("Vertical", 11, 3, 37, 3),
    Sketcher.Constraint("Equal", 2, 4),
    Sketcher.Constraint("Radius", 1, 1.5),
    Sketcher.Constraint("DistanceY", 0, 2, 0, 1, 5.0),
    Sketcher.Constraint("DistanceX", -1, 1, 0, 2, 48.0),
    Sketcher.Constraint("DistanceX", -1, 1, 8, 2, 42.0),
    Sketcher.Constraint("DistanceX", -1, 1, 12, 2, 36.0),
    Sketcher.Constraint("DistanceX", -1, 1, 16, 2, 30.0),
    Sketcher.Constraint("DistanceX", -1, 1, 20, 2, 24.0),
    Sketcher.Constraint("DistanceY", 3, 3, 5, 3, 11.0),
    Sketcher.Constraint("DistanceY", -1, 1, 1, 3, 13.5),
])
pocket7 = body.newObject("PartDesign::Pocket", "Pocket006")
pocket7.Profile = sketch12
pocket7.Length = 3
pocket7.Reversed = True

doc.recompute()
